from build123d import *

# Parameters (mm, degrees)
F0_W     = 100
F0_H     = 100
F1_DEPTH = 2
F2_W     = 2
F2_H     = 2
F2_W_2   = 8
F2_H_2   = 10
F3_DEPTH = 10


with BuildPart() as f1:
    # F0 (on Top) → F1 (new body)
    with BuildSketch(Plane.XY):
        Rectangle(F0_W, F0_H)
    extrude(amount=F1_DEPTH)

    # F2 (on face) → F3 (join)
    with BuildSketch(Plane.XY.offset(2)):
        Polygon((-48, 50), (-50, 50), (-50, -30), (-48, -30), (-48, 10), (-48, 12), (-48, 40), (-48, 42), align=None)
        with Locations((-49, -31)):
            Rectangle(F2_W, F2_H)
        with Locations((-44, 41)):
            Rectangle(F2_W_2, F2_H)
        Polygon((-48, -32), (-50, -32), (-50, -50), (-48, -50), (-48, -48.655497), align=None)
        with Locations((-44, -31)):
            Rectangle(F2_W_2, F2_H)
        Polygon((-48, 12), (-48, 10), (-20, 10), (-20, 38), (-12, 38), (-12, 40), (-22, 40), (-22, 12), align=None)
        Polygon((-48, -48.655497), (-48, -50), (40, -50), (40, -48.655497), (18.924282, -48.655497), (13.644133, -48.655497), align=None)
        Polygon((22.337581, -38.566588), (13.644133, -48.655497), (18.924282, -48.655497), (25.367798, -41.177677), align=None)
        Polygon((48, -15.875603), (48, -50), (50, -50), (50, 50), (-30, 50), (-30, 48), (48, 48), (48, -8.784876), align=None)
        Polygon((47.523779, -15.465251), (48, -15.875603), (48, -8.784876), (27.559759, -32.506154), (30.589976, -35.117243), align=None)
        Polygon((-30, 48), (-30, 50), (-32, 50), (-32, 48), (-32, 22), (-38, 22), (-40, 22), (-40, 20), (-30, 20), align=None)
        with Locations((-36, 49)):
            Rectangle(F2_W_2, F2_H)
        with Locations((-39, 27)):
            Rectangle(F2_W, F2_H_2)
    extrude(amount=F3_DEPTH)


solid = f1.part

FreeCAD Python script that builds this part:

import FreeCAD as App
import Part
import Sketcher


def add_polygon(sketch, points):
    """Adds a closed chain of lines whose ends are joined by coincident constraints."""
    first, n = sketch.GeometryCount, len(points)
    for a, b in zip(points, points[1:] + points[:1]):
        sketch.addGeometry(Part.LineSegment(App.Vector(*a, 0), App.Vector(*b, 0)), False)
    for i in range(n):
        sketch.addConstraint(Sketcher.Constraint("Coincident", first + i, 2, first + (i + 1) % n, 1))

doc = App.newDocument("Part")
params = doc.addObject("Spreadsheet::Sheet", "Params")
for row, (alias, value) in enumerate([
    ("sketch1_width", "100 mm"),
    ("pad1_length", "2 mm"),
    ("sketch2_width", "2 mm"),
    ("sketch2_width2", "90 mm"),
    ("sketch2_width3", "8 mm"),
    ("sketch2_width4", "28 mm"),
    ("sketch2_width5", "10 mm"),
    ("pad2_length", "10 mm"),
], start=1):
    params.set(f"A{row}", alias)
    params.set(f"B{row}", "=" + value)
    params.setAlias(f"B{row}", alias)

body = doc.addObject("PartDesign::Body", "Body")

# Sketch on XY plane
sketch1 = body.newObject("Sketcher::SketchObject", "Sketch")
sketch1.AttachmentSupport = (doc.getObject("XY_Plane"), [""])
sketch1.MapMode = "FlatFace"
add_polygon(sketch1, [(-50, 50), (-50, -50), (50, -50), (50, 50)])  # lines 0-3
sketch1.addConstraint([
    Sketcher.Constraint("Vertical", 0),
    Sketcher.Constraint("Horizontal", 1),
    Sketcher.Constraint("Vertical", 2),
    Sketcher.Constraint("Horizontal", 3),
    Sketcher.Constraint("Symmetric", 0, 2, 2, 2, -1, 1),
    Sketcher.Constraint("Equal", 3, 0),
    Sketcher.Constraint("DistanceX", 1, 1, 1, 2, 100.0),
])
sketch1.setExpression("Constraints[10]", "Params.sketch1_width")
pad1 = body.newObject("PartDesign::Pad", "Pad")
pad1.Profile = sketch1
pad1.setExpression("Length", "Params.pad1_length")

# Sketch on XY plane
sketch2 = body.newObject("Sketcher::SketchObject", "Sketch001")
sketch2.AttachmentSupport = (doc.getObject("XY_Plane"), [""])
sketch2.MapMode = "FlatFace"
sketch2.AttachmentOffset = App.Placement(App.Vector(0, 0, 2), App.Rotation())
add_polygon(sketch2, [(-48, 50), (-50, 50), (-50, -50), (40, -50), (40, -48.7), (18.9, -48.7), (25.4, -41.2), (22.3, -38.6), (13.6, -48.7), (-48, -48.7), (-48, -32), (-40, -32), (-40, -30), (-48, -30), (-48, 10), (-20, 10), (-20, 38), (-12, 38), (-12, 40), (-22, 40), (-22, 12), (-48, 12), (-48, 40), (-40, 40), (-40, 42), (-48, 42)])  # lines 0-25
add_polygon(sketch2, [(48, -50), (50, -50), (50, 50), (-40, 50), (-40, 48), (-32, 48), (-32, 22), (-38, 22), (-38, 32), (-40, 32), (-40, 20), (-30, 20), (-30, 48), (48, 48), (48, -8.8), (27.6, -32.5), (30.6, -35.1), (47.5, -15.5), (48, -15.9)])  # lines 26-44
sketch2.addConstraint([
    Sketcher.Constraint("Horizontal", 0),
    Sketcher.Constraint("Vertical", 1),
    Sketcher.Constraint("Horizontal", 2),
    Sketcher.Constraint("Vertical", 3),
    Sketcher.Constraint("Horizontal", 4),
    Sketcher.Constraint("Horizontal", 8),
    Sketcher.Constraint("Vertical", 9),
    Sketcher.Constraint("Horizontal", 10),
    Sketcher.Constraint("Vertical", 11),
    Sketcher.Constraint("Horizontal", 12),
    Sketcher.Constraint("Vertical", 13),
    Sketcher.Constraint("Horizontal", 14),
    Sketcher.Constraint("Vertical", 15),
    Sketcher.Constraint("Horizontal", 16),
    Sketcher.Constraint("Vertical", 17),
    Sketcher.Constraint("Horizontal", 18),
    Sketcher.Constraint("Vertical", 19),
    Sketcher.Constraint("Horizontal", 20),
    Sketcher.Constraint("Vertical", 21),
    Sketcher.Constraint("Horizontal", 22),
    Sketcher.Constraint("Vertical", 23),
    Sketcher.Constraint("Horizontal", 24),
    Sketcher.Constraint("Vertical", 25),
    Sketcher.Constraint("Horizontal", 26),
    Sketcher.Constraint("Vertical", 27),
    Sketcher.Constraint("Horizontal", 28),
    Sketcher.Constraint("Vertical", 29),
    Sketcher.Constraint("Horizontal", 30),
    Sketcher.Constraint("Vertical", 31),
    Sketcher.Constraint("Horizontal", 32),
    Sketcher.Constraint("Vertical", 33),
    Sketcher.Constraint("Horizontal", 34),
    Sketcher.Constraint("Vertical", 35),
    Sketcher.Constraint("Horizontal", 36),
    Sketcher.Constraint("Vertical", 37),
    Sketcher.Constraint("Horizontal", 38),
    Sketcher.Constraint("Vertical", 39),
    Sketcher.Constraint("Vertical", 44),
    Sketcher.Constraint("Symmetric", 0, 2, 26, 2, -1, 1),
    Sketcher.Constraint("Symmetric", 2, 2, 28, 2, -1, 1),
    Sketcher.Constraint("Symmetric", 10, 2, 34, 2, -1),
    Sketcher.Constraint("Perpendicular", 5, 6),
    Sketcher.Constraint("Perpendicular", 6, 7),
    Sketcher.Constraint("Parallel", 7, 40),
    Sketcher.Constraint("Perpendicular", 40, 41),
    Sketcher.Constraint("Perpendicular", 41, 42),
    Sketcher.Constraint("Perpendicular", 42, 43),
    Sketcher.Constraint("Horizontal", 4, 2, 7, 2),
    Sketcher.Constraint("Horizontal", 18, 2, 21, 2),
    Sketcher.Constraint("Horizontal", 2, 2, 26, 2),
    Sketcher.Constraint("Horizontal", 30, 2, 37, 2),
    Sketcher.Constraint("Vertical", 9, 2, 12, 2),
    Sketcher.Constraint("Vertical", 13, 2, 20, 2),
    Sketcher.Constraint("Vertical", 11, 2, 22, 2),
    Sketcher.Constraint("Vertical", 21, 2, 24, 2),
    Sketcher.Constraint("Vertical", 23, 2, 28, 2),
    Sketcher.Constraint("Vertical", 39, 2, 43, 2),
    Sketcher.Constraint("Equal", 12, 16),
    Sketcher.Constraint("Equal", 0, 26),
    Sketcher.Constraint("Equal", 24, 30),
    Sketcher.Constraint("Equal", 26, 34),
    Sketcher.Constraint("Equal", 18, 36),
    Sketcher.Constraint("Equal", 34, 11),
    Sketcher.Constraint("Equal", 14, 15),
    Sketcher.Constraint("Equal", 11, 17),
    Sketcher.Constraint("Equal", 15, 19),
    Sketcher.Constraint("Equal", 17, 23),
    Sketcher.Constraint("Equal", 30, 25),
    Sketcher.Constraint("Equal", 23, 29),
    Sketcher.Constraint("Equal", 20, 31),
    Sketcher.Constraint("Equal", 36, 33),
    Sketcher.Constraint("Equal", 21, 37),
    Sketcher.Constraint("Equal", 6, 41),
    Sketcher.Constraint("DistanceX", 0, 2, 0, 1, 2.0),
    Sketcher.Constraint("DistanceX", 2, 1, 2, 2, 90.0),
    Sketcher.Constraint("DistanceX", 10, 1, 10, 2, 8.0),
    Sketcher.Constraint("DistanceX", 14, 1, 14, 2, 28.0),
    Sketcher.Constraint("DistanceX", 18, 2, 18, 1, 10.0),
    Sketcher.Constraint("DistanceY", 1, 2, 1, 1, 100.0),
    Sketcher.Constraint("Distance", 6, 4.0),
    Sketcher.Constraint("DistanceX", -1, 1, 5, 2, 25.367798),
    Sketcher.Constraint("DistanceX", 4, 2, 6, 2, 3.413299),
    Sketcher.Constraint("DistanceY", 5, 2, 39, 2, 32.392801),
    Sketcher.Constraint("Distance", 43, 0.62863),
    Sketcher.Constraint("DistanceX", 4, 2, 4, 1, 21.075718),
    Sketcher.Constraint("DistanceY", 3, 1, 3, 2, 1.344503),
    Sketcher.Constraint("DistanceX", -1, 1, 40, 2, 27.559759),
])
sketch2.setExpression("Constraints[118]", "Params.sketch2_width")
sketch2.setExpression("Constraints[119]", "Params.sketch2_width2")
sketch2.setExpression("Constraints[120]", "Params.sketch2_width3")
sketch2.setExpression("Constraints[121]", "Params.sketch2_width4")
sketch2.setExpression("Constraints[122]", "Params.sketch2_width5")
pad2 = body.newObject("PartDesign::Pad", "Pad001")
pad2.Profile = sketch2
pad2.setExpression("Length", "Params.pad2_length")

doc.recompute()
